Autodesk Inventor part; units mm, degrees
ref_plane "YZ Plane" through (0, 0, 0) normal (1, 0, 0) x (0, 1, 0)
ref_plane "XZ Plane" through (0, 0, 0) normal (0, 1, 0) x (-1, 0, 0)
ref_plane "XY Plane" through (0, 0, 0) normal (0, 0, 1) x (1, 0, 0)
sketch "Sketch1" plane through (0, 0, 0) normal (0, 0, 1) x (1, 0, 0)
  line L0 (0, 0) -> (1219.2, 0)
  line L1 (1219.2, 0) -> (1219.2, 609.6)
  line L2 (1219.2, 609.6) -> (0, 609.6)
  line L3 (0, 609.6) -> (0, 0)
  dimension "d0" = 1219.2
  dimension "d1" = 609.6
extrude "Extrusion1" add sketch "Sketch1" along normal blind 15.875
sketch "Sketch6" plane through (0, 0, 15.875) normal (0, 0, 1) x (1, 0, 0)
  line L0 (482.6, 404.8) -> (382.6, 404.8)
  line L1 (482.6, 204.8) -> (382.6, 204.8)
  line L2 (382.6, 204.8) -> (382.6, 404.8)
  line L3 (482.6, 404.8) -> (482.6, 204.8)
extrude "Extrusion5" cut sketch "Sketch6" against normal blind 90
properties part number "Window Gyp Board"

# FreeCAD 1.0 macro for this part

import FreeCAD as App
import Part
import Sketcher

V = App.Vector
Q = App.Units.Quantity

doc = App.newDocument("Part")
body = doc.addObject("PartDesign::Body", "Body")

# Sketch on XY plane
sketch1 = doc.addObject("Sketcher::SketchObject", "Sketch")
body.addObject(sketch1)
sketch1.AttachmentSupport = (doc.XY_Plane, [""])
sketch1.MapMode = "FlatFace"
sketch1.addGeometry([
    Part.LineSegment(V(0, 609.6, 0), V(0, 0, 0)),
    Part.LineSegment(V(0, 0, 0), V(1219.2, 0, 0)),
    Part.LineSegment(V(1219.2, 0, 0), V(1219.2, 609.6, 0)),
    Part.LineSegment(V(1219.2, 609.6, 0), V(0, 609.6, 0)),
], False)
sketch1.addConstraint([
    Sketcher.Constraint("Coincident", 0, 2, 1, 1),
    Sketcher.Constraint("Coincident", 1, 2, 2, 1),
    Sketcher.Constraint("Coincident", 2, 2, 3, 1),
    Sketcher.Constraint("Coincident", 3, 2, 0, 1),
    Sketcher.Constraint("Vertical", 0),
    Sketcher.Constraint("Horizontal", 1),
    Sketcher.Constraint("Vertical", 2),
    Sketcher.Constraint("Horizontal", 3),
    Sketcher.Constraint("Coincident", 0, 2, -1, 1),
    Sketcher.Constraint("DistanceX", 1, 1, 1, 2, Q("48 in")),
    Sketcher.Constraint("DistanceY", 0, 2, 0, 1, Q("24 in")),
])
pad1 = doc.addObject("PartDesign::Pad", "Pad")
body.addObject(pad1)
pad1.Profile = sketch1
pad1.Length = Q("0.625 in")

# Sketch on XY plane
sketch2 = doc.addObject("Sketcher::SketchObject", "Sketch001")
body.addObject(sketch2)
sketch2.AttachmentSupport = (doc.XY_Plane, [""])
sketch2.MapMode = "FlatFace"
sketch2.AttachmentOffset = App.Placement(V(0, 0, 0.625 * 25.4), App.Rotation())
sketch2.addGeometry([
    Part.LineSegment(V(482.6, 204.8, 0), V(482.6, 404.8, 0)),
    Part.LineSegment(V(482.6, 404.8, 0), V(382.6, 404.8, 0)),
    Part.LineSegment(V(382.6, 404.8, 0), V(382.6, 204.8, 0)),
    Part.LineSegment(V(382.6, 204.8, 0), V(482.6, 204.8, 0)),
], False)
sketch2.addConstraint([
    Sketcher.Constraint("Coincident", 0, 2, 1, 1),
    Sketcher.Constraint("Coincident", 1, 2, 2, 1),
    Sketcher.Constraint("Coincident", 2, 2, 3, 1),
    Sketcher.Constraint("Coincident", 3, 2, 0, 1),
    Sketcher.Constraint("Vertical", 0),
    Sketcher.Constraint("Horizontal", 1),
    Sketcher.Constraint("Vertical", 2),
    Sketcher.Constraint("Horizontal", 3),
    Sketcher.Constraint("DistanceX", -1, 1, 0, 2, Q("19 in")),
    Sketcher.Constraint("DistanceX", 1, 2, 1, 1, Q("3.937 in")),
    Sketcher.Constraint("DistanceY", -1, 1, 0, 2, Q("15.937 in")),
    Sketcher.Constraint("DistanceY", -1, 1, 2, 2, Q("8.063 in")),
])
pocket1 = doc.addObject("PartDesign::Pocket", "Pocket")
body.addObject(pocket1)
pocket1.Profile = sketch2
pocket1.Length = Q("3.5433071 in")

doc.recompute()
